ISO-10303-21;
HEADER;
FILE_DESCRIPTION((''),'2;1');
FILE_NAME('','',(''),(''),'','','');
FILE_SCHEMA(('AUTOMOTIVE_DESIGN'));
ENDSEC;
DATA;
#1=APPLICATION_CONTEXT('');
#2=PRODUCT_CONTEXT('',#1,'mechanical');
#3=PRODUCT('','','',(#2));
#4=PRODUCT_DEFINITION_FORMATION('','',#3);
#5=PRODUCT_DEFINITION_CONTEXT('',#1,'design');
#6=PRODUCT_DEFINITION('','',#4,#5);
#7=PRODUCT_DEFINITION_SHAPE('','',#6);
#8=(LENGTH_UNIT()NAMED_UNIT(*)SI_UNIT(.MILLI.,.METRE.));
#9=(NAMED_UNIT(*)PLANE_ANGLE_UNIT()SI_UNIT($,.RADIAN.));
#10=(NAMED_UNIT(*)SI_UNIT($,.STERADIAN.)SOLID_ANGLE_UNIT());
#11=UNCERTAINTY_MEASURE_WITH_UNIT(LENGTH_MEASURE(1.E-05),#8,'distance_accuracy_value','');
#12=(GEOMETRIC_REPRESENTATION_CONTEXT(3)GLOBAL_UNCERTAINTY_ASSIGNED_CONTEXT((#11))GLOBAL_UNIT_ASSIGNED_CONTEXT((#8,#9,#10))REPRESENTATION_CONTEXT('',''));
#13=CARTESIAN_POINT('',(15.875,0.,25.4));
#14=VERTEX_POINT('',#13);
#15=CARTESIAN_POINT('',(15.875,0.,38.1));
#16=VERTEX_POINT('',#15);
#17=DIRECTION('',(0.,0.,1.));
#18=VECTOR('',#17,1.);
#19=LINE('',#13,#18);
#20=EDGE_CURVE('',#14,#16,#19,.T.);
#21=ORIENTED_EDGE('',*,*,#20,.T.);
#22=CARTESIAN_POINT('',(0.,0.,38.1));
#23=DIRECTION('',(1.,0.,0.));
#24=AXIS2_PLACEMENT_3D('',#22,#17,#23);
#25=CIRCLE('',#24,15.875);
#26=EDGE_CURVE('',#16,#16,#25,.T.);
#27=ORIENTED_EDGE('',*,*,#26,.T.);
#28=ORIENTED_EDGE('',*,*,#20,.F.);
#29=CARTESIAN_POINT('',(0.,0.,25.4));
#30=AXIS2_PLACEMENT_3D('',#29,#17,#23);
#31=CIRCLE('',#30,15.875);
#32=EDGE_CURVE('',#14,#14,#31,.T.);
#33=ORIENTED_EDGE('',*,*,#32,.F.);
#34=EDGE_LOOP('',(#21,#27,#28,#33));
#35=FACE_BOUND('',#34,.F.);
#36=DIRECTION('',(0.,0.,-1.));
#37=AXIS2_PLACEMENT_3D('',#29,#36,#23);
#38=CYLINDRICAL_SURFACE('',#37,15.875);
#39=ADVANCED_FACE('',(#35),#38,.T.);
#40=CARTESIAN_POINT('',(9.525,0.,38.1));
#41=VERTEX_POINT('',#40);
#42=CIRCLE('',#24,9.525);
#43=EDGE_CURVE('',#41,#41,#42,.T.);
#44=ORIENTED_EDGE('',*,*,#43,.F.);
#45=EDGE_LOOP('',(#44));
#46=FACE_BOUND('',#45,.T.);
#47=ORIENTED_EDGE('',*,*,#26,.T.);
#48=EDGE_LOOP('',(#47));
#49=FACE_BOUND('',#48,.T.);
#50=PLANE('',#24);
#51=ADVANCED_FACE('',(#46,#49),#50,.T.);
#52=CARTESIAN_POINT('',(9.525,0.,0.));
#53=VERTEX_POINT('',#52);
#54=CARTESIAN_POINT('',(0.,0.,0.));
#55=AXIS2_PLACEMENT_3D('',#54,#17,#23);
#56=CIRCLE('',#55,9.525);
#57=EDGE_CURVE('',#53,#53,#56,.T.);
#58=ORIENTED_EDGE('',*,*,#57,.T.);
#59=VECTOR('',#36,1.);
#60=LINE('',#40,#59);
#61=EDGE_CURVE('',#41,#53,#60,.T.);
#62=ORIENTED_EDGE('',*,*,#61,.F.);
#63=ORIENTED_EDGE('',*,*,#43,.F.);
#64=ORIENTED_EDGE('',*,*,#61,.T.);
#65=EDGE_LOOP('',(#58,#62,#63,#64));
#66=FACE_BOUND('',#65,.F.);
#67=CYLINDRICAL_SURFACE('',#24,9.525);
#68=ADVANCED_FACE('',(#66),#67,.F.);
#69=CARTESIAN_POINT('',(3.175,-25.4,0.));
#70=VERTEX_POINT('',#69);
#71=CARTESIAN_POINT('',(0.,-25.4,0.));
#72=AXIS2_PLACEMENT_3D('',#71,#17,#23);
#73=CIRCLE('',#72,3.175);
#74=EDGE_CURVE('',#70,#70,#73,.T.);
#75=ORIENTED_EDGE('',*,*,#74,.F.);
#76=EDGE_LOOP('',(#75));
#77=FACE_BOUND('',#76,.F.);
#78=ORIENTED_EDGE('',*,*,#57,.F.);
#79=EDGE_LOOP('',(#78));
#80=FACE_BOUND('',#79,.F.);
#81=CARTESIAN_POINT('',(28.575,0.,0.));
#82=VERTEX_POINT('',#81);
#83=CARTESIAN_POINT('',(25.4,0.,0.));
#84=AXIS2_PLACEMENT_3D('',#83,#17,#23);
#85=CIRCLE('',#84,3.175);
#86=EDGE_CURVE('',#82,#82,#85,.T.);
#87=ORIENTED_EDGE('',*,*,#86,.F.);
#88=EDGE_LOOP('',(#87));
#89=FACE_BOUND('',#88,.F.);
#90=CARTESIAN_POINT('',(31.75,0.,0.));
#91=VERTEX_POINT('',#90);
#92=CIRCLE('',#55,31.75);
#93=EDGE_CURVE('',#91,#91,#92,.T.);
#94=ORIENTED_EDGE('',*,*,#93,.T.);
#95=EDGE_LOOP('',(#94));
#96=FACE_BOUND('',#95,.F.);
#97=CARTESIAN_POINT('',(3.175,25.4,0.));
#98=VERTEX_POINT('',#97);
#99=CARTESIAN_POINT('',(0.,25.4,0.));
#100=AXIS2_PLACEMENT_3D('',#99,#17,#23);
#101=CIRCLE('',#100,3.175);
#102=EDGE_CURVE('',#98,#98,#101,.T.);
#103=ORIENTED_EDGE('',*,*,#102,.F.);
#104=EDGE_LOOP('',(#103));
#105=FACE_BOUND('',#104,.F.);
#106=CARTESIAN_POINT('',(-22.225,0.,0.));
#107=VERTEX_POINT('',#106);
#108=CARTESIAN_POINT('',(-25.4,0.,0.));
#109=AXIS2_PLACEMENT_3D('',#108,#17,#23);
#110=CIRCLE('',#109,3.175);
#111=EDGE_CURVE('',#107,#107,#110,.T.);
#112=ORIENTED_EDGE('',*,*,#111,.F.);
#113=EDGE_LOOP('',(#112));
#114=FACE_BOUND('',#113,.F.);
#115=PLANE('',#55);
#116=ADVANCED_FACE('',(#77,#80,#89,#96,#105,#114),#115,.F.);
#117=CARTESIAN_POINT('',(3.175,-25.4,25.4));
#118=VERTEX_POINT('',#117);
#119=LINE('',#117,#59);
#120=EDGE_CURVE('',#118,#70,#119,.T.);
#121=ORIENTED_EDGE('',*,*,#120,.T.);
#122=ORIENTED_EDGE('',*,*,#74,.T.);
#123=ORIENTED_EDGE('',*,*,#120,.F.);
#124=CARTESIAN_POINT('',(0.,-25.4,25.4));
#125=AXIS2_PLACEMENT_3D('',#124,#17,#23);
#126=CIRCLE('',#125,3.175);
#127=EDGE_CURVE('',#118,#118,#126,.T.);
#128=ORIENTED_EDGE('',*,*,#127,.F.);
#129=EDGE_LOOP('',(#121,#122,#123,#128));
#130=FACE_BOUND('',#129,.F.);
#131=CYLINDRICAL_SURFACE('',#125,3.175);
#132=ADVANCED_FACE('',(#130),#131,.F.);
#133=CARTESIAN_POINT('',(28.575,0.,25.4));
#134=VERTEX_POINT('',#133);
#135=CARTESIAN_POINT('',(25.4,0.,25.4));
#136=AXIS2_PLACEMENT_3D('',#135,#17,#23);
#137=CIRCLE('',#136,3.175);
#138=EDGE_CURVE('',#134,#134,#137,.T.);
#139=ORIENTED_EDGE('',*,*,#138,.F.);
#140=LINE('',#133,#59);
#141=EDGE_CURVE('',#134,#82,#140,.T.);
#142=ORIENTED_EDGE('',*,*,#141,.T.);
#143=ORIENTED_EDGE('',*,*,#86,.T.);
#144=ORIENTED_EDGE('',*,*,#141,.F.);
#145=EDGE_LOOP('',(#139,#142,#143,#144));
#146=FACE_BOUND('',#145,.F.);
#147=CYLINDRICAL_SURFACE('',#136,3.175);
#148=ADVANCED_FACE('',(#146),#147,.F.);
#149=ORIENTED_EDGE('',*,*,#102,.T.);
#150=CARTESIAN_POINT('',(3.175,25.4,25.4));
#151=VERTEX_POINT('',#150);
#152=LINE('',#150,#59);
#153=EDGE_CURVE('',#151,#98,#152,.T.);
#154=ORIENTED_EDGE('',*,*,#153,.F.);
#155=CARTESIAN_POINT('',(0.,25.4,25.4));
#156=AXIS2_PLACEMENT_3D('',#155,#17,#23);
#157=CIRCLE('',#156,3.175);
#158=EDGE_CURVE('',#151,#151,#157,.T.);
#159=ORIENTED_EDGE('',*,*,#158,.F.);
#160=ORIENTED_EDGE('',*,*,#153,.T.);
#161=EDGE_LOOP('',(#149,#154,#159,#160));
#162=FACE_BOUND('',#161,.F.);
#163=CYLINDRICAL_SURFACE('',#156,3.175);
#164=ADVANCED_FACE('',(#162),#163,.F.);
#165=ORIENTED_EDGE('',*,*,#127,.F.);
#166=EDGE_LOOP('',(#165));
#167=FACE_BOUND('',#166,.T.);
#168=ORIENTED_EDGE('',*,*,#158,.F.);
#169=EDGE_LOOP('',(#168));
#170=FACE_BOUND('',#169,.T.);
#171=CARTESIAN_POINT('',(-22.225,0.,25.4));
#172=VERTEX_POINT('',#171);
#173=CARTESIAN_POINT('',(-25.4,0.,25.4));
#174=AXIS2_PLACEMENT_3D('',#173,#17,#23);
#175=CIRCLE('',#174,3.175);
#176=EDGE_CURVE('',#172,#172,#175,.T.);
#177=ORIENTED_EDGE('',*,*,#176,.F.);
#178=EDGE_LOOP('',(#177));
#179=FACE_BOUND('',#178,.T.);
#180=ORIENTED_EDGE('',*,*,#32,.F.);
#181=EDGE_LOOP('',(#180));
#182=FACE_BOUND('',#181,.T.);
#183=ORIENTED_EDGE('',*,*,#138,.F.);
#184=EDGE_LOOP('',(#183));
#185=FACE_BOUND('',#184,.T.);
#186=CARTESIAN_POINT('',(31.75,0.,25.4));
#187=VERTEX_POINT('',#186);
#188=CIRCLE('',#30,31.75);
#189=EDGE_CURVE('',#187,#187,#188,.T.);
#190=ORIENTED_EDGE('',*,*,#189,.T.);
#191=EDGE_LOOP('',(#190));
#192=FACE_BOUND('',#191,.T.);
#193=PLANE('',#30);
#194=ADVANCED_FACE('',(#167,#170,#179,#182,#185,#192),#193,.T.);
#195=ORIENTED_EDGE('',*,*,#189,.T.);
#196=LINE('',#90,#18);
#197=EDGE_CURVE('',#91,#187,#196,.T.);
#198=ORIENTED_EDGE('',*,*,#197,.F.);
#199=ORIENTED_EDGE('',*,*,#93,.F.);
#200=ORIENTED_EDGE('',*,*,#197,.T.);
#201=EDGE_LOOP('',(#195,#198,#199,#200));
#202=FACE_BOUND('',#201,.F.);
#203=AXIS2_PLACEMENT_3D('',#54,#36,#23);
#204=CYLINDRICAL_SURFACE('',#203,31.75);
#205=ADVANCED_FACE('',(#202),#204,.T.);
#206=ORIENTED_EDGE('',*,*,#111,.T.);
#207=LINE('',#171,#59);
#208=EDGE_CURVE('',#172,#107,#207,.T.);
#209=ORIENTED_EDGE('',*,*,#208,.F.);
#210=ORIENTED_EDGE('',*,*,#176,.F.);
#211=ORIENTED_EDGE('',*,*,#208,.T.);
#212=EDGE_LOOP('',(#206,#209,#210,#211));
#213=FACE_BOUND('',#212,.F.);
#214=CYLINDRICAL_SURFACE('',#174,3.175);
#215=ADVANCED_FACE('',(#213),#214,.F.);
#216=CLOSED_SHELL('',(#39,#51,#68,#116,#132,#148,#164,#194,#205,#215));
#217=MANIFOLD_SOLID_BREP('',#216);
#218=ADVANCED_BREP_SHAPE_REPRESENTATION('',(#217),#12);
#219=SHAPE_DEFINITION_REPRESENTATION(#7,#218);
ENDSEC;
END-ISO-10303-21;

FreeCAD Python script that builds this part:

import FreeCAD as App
import Part
import Sketcher

V = App.Vector
Q = App.Units.Quantity

doc = App.newDocument("Part")
params = doc.addObject("Spreadsheet::Sheet", "Params")
for row, (alias, value) in enumerate([
    ("sketch1_diameter", "2.5 in"),
    ("pad1_length", "1 in"),
    ("sketch2_diameter", "1.25 in"),
    ("pad2_length", "0.5 in"),
    ("sketch3_diameter", "0.75 in"),
    ("sketch4_diameter", "0.25 in"),
], start=1):
    params.set(f"A{row}", alias)
    params.set(f"B{row}", "=" + value)
    params.setAlias(f"B{row}", alias)

body = doc.addObject("PartDesign::Body", "Body")

sketch1 = body.newObject("Sketcher::SketchObject", "Sketch")
sketch1.AttachmentSupport = (doc.getObject("XY_Plane"), [""])
sketch1.MapMode = "FlatFace"
sketch1.addGeometry(Part.Circle(V(0, 0, 0), V(0, 0, 1), 32), False)
sketch1.addConstraint(Sketcher.Constraint("Coincident", 0, 3, -1, 1))
sketch1.addConstraint(Sketcher.Constraint("Diameter", 0, Q("2.5 in")))
sketch1.setExpression("Constraints[1]", "Params.sketch1_diameter")
pad1 = body.newObject("PartDesign::Pad", "Pad")
pad1.Profile = sketch1
pad1.setExpression("Length", "Params.pad1_length")

sketch2 = body.newObject("Sketcher::SketchObject", "Sketch001")
sketch2.AttachmentSupport = (doc.getObject("XY_Plane"), [""])
sketch2.MapMode = "FlatFace"
sketch2.AttachmentOffset = App.Placement(V(0, 0, 1 * 25.4), App.Rotation())
sketch2.addGeometry(Part.Circle(V(0, 0, 0), V(0, 0, 1), 16), False)
sketch2.addConstraint(Sketcher.Constraint("Coincident", 0, 3, -1, 1))
sketch2.addConstraint(Sketcher.Constraint("Diameter", 0, Q("1.25 in")))
sketch2.setExpression("Constraints[1]", "Params.sketch2_diameter")
pad2 = body.newObject("PartDesign::Pad", "Pad001")
pad2.Profile = sketch2
pad2.setExpression("Length", "Params.pad2_length")

sketch3 = body.newObject("Sketcher::SketchObject", "Sketch002")
sketch3.AttachmentSupport = (doc.getObject("XY_Plane"), [""])
sketch3.MapMode = "FlatFace"
sketch3.AttachmentOffset = App.Placement(V(0, 0, 1.5 * 25.4), App.Rotation())
sketch3.addGeometry(Part.Circle(V(0, 0, 0), V(0, 0, 1), 10), False)
sketch3.addConstraint(Sketcher.Constraint("Coincident", 0, 3, -1, 1))
sketch3.addConstraint(Sketcher.Constraint("Diameter", 0, Q("0.75 in")))
sketch3.setExpression("Constraints[1]", "Params.sketch3_diameter")
pocket1 = body.newObject("PartDesign::Pocket", "Pocket")
pocket1.Profile = sketch3
pocket1.Type = "ThroughAll"

sketch4 = body.newObject("Sketcher::SketchObject", "Sketch003")
sketch4.AttachmentSupport = (doc.getObject("XY_Plane"), [""])
sketch4.MapMode = "FlatFace"
sketch4.AttachmentOffset = App.Placement(V(0, 0, 1 * 25.4), App.Rotation())
sketch4.addGeometry(Part.Circle(V(0, 25.4, 0), V(0, 0, 1), 3.2), False)
sketch4.addGeometry(Part.Circle(V(-25.4, 0, 0), V(0, 0, 1), 3.2), False)
sketch4.addGeometry(Part.Circle(V(0, -25.4, 0), V(0, 0, 1), 3.2), False)
sketch4.addGeometry(Part.Circle(V(25.4, 0, 0), V(0, 0, 1), 3.2), False)
sketch4.addConstraint(Sketcher.Constraint("Equal", 0, 1))
sketch4.addConstraint(Sketcher.Constraint("Equal", 1, 2))
sketch4.addConstraint(Sketcher.Constraint("Equal", 2, 3))
sketch4.addConstraint(Sketcher.Constraint("Symmetric", 0, 3, 2, 3, -1, 1))
sketch4.addConstraint(Sketcher.Constraint("Symmetric", 1, 3, 3, 3, -1, 1))
sketch4.addConstraint(Sketcher.Constraint("PointOnObject", 0, 3, -2))
sketch4.addConstraint(Sketcher.Constraint("PointOnObject", 1, 3, -1))
sketch4.addConstraint(Sketcher.Constraint("Diameter", 0, Q("0.25 in")))
sketch4.addConstraint(Sketcher.Constraint("DistanceY", -1, 1, 0, 3, Q("1 in")))
sketch4.addConstraint(Sketcher.Constraint("DistanceX", 1, 3, -1, 1, Q("1 in")))
sketch4.setExpression("Constraints[7]", "Params.sketch4_diameter")
pocket2 = body.newObject("PartDesign::Pocket", "Pocket001")
pocket2.Profile = sketch4
pocket2.Type = "ThroughAll"

doc.recompute()
